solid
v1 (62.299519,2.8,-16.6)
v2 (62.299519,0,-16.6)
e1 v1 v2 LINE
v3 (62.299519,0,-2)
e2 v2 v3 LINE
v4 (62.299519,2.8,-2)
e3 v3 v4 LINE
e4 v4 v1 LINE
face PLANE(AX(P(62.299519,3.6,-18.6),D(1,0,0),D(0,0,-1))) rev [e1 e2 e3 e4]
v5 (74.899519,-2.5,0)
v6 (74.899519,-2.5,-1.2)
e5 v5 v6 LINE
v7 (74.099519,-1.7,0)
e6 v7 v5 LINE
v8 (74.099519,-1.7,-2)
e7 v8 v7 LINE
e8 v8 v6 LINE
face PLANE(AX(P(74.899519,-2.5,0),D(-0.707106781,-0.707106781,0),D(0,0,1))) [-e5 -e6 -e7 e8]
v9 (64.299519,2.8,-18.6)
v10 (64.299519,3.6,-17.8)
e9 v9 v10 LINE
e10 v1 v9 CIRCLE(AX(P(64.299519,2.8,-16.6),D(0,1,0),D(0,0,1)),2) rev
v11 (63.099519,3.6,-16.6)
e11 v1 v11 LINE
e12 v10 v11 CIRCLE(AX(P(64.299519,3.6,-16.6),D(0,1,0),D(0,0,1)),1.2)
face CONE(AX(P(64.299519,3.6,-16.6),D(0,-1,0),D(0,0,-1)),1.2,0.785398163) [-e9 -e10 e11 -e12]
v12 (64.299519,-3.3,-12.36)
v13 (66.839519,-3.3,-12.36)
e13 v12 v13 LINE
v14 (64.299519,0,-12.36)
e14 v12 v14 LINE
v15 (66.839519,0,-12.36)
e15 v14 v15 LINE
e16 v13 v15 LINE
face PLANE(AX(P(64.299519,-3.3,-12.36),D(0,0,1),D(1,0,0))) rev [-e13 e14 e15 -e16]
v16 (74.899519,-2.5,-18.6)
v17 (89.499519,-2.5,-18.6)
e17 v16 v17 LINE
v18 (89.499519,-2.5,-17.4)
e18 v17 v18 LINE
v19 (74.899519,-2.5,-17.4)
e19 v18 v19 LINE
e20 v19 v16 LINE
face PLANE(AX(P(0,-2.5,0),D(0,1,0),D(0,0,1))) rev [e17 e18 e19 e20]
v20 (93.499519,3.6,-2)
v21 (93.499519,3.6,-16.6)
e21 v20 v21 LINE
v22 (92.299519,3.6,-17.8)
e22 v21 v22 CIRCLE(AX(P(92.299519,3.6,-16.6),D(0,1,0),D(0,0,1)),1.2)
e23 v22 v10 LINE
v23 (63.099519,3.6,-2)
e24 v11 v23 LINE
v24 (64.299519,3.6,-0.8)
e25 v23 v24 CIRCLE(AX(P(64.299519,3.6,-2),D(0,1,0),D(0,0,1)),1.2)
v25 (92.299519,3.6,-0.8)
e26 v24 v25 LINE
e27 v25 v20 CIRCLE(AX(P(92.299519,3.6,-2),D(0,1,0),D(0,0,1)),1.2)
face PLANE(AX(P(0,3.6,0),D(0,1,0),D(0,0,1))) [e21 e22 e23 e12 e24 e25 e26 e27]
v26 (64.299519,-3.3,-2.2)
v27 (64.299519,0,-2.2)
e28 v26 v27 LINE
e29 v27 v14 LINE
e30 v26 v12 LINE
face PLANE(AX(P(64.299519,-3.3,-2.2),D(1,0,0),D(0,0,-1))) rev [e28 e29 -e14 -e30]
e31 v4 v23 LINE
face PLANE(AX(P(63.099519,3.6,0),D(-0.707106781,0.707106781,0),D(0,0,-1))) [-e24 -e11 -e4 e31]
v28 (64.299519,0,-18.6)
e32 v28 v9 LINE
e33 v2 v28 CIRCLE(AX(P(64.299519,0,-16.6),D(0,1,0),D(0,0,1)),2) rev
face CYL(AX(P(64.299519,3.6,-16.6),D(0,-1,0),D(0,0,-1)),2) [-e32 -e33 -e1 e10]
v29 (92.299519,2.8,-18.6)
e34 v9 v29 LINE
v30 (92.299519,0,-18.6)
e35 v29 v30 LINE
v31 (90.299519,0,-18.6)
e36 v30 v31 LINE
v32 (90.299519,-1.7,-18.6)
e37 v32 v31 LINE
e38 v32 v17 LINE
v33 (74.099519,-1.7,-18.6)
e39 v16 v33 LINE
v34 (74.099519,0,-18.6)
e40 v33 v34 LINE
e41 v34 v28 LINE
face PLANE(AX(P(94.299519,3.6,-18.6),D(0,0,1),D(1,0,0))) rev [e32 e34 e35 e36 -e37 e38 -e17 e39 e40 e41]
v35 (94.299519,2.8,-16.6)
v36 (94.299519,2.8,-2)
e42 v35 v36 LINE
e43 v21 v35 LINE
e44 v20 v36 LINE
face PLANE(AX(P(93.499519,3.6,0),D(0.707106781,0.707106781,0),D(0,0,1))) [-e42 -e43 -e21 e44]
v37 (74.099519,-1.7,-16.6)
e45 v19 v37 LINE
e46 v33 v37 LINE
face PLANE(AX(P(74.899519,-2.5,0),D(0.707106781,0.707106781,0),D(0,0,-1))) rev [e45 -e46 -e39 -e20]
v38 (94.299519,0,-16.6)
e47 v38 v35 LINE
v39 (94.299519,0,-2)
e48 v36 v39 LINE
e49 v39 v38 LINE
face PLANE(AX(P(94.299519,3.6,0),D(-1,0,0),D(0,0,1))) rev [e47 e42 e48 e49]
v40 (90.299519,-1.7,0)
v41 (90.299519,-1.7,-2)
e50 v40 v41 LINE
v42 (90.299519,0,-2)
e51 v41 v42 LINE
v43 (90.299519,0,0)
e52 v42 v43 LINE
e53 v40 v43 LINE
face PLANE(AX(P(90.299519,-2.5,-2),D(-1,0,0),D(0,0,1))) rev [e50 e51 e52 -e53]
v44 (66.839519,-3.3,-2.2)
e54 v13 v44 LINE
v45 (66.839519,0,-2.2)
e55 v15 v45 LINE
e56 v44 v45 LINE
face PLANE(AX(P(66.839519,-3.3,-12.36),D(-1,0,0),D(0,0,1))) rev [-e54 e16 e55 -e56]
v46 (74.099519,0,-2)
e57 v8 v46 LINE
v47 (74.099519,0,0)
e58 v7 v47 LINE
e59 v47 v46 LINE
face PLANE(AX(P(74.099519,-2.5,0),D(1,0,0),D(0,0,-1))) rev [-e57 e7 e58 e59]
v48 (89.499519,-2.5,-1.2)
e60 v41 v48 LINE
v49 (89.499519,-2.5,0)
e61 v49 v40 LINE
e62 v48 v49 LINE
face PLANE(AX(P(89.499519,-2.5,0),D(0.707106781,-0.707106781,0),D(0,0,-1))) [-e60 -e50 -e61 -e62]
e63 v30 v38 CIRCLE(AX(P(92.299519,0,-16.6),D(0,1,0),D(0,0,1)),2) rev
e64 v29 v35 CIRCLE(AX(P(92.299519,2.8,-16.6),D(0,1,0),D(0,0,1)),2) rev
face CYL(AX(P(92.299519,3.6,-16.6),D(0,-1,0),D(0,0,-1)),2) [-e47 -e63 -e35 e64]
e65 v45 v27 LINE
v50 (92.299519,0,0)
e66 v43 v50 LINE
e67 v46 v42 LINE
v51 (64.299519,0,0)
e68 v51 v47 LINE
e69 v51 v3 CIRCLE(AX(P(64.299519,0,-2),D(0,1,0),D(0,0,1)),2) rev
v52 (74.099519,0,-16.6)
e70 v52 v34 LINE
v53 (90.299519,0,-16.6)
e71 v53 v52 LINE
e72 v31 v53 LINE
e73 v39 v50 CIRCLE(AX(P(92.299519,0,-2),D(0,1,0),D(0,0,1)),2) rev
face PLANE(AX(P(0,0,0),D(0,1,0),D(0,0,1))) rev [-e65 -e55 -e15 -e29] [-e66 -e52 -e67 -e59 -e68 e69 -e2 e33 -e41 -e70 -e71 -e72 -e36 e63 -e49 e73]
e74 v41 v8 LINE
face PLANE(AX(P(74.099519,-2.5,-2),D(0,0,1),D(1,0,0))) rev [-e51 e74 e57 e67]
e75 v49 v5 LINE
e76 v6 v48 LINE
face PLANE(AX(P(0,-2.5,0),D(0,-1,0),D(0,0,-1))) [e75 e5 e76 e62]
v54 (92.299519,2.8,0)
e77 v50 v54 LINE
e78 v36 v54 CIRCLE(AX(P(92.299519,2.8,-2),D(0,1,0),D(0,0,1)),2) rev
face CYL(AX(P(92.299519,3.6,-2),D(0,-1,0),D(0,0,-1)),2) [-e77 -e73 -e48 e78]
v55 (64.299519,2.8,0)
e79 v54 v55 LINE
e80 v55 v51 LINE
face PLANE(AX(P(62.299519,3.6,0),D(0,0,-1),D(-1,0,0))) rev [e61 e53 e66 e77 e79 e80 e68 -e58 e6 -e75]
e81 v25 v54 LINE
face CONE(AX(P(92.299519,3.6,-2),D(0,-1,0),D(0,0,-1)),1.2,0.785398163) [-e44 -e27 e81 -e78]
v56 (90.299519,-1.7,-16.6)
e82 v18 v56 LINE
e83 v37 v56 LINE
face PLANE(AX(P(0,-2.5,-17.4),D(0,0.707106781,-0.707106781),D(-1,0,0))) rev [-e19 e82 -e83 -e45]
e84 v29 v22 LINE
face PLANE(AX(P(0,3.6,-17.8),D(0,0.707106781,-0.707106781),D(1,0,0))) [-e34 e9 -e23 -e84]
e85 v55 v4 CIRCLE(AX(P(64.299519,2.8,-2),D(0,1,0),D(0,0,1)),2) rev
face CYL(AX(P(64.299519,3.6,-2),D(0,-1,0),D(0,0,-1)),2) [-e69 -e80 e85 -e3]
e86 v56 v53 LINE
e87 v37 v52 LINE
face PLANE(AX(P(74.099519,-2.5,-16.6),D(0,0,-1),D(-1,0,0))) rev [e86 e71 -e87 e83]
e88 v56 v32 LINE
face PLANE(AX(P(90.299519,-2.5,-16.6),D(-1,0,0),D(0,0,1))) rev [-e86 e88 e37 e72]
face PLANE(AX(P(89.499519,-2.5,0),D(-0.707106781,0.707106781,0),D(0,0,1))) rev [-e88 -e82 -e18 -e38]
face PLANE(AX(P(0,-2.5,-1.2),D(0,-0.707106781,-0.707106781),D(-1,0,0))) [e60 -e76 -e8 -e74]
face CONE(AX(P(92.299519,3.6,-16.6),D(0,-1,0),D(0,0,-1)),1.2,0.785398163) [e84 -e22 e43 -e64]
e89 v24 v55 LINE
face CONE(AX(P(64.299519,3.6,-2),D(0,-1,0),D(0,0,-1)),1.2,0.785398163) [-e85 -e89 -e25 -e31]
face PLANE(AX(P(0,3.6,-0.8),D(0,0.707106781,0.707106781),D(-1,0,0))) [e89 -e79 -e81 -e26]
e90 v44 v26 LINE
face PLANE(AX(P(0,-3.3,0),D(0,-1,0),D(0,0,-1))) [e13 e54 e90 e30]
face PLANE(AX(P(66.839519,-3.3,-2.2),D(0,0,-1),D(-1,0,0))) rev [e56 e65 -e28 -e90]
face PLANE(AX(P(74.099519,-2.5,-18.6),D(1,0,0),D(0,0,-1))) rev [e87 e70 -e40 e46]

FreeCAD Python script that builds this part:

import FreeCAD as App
import Part
import Sketcher

V = App.Vector


def edges_at(feature, points):
    """Names of the edges that pass closest to the given points."""
    edges = feature.Shape.Edges
    near = lambda p: min(range(len(edges)), key=lambda i: edges[i].distToShape(Part.Vertex(*p))[0])
    return sorted({f"Edge{near(p) + 1}" for p in points})

doc = App.newDocument("Part")
body = doc.addObject("PartDesign::Body", "Body")

# Sketch on XZ plane
sketch1 = body.newObject("Sketcher::SketchObject", "Sketch")
sketch1.AttachmentSupport = (doc.getObject("XZ_Plane"), [""])
sketch1.MapMode = "FlatFace"
sketch1.addGeometry(Part.LineSegment(V(62, -19, 0), V(62, 0, 0)), False)
sketch1.addGeometry(Part.LineSegment(V(62, 0, 0), V(94, 0, 0)), False)
sketch1.addGeometry(Part.LineSegment(V(94, 0, 0), V(94, -19, 0)), False)
sketch1.addGeometry(Part.LineSegment(V(94, -19, 0), V(62, -19, 0)), False)
sketch1.addConstraint(Sketcher.Constraint("Coincident", 0, 2, 1, 1))
sketch1.addConstraint(Sketcher.Constraint("Coincident", 1, 2, 2, 1))
sketch1.addConstraint(Sketcher.Constraint("Coincident", 2, 2, 3, 1))
sketch1.addConstraint(Sketcher.Constraint("Coincident", 3, 2, 0, 1))
sketch1.addConstraint(Sketcher.Constraint("Vertical", 0))
sketch1.addConstraint(Sketcher.Constraint("Horizontal", 1))
sketch1.addConstraint(Sketcher.Constraint("Vertical", 2))
sketch1.addConstraint(Sketcher.Constraint("Horizontal", 3))
sketch1.addConstraint(Sketcher.Constraint("PointOnObject", 0, 2, -1))
sketch1.addConstraint(Sketcher.Constraint("DistanceX", 1, 1, 1, 2, 32.0))
sketch1.addConstraint(Sketcher.Constraint("DistanceY", 0, 1, 0, 2, 18.6))
sketch1.addConstraint(Sketcher.Constraint("DistanceX", -1, 1, 0, 2, 62.299519))
pad1 = body.newObject("PartDesign::Pad", "Pad")
pad1.Profile = sketch1
pad1.Length = 3.6
pad1.Reversed = True

# Sketch on XZ plane
sketch2 = body.newObject("Sketcher::SketchObject", "Sketch001")
sketch2.AttachmentSupport = (doc.getObject("XZ_Plane"), [""])
sketch2.MapMode = "FlatFace"
sketch2.addGeometry(Part.LineSegment(V(64.3, -2.2, 0), V(64.3, -12.4, 0)), False)
sketch2.addGeometry(Part.LineSegment(V(64.3, -12.4, 0), V(66.8, -12.4, 0)), False)
sketch2.addGeometry(Part.LineSegment(V(66.8, -12.4, 0), V(66.8, -2.2, 0)), False)
sketch2.addGeometry(Part.LineSegment(V(66.8, -2.2, 0), V(64.3, -2.2, 0)), False)
sketch2.addConstraint(Sketcher.Constraint("Coincident", 0, 2, 1, 1))
sketch2.addConstraint(Sketcher.Constraint("Coincident", 1, 2, 2, 1))
sketch2.addConstraint(Sketcher.Constraint("Coincident", 2, 2, 3, 1))
sketch2.addConstraint(Sketcher.Constraint("Coincident", 3, 2, 0, 1))
sketch2.addConstraint(Sketcher.Constraint("Vertical", 0))
sketch2.addConstraint(Sketcher.Constraint("Horizontal", 1))
sketch2.addConstraint(Sketcher.Constraint("Vertical", 2))
sketch2.addConstraint(Sketcher.Constraint("Horizontal", 3))
sketch2.addConstraint(Sketcher.Constraint("DistanceX", 1, 1, 1, 2, 2.54))
sketch2.addConstraint(Sketcher.Constraint("DistanceY", 0, 2, 0, 1, 10.16))
sketch2.addConstraint(Sketcher.Constraint("DistanceY", 2, 2, -1, 1, 2.2))
sketch2.addConstraint(Sketcher.Constraint("DistanceX", -1, 1, 0, 2, 64.299519))
pad2 = body.newObject("PartDesign::Pad", "Pad001")
pad2.Profile = sketch2
pad2.Length = 3.3

# Sketch on XZ plane
sketch3 = body.newObject("Sketcher::SketchObject", "Sketch002")
sketch3.AttachmentSupport = (doc.getObject("XZ_Plane"), [""])
sketch3.MapMode = "FlatFace"
sketch3.addGeometry(Part.LineSegment(V(74.1, -16.6, 0), V(74.1, -18.6, 0)), False)
sketch3.addGeometry(Part.LineSegment(V(74.1, -18.6, 0), V(90.3, -18.6, 0)), False)
sketch3.addGeometry(Part.LineSegment(V(90.3, -18.6, 0), V(90.3, -16.6, 0)), False)
sketch3.addGeometry(Part.LineSegment(V(90.3, -16.6, 0), V(74.1, -16.6, 0)), False)
sketch3.addGeometry(Part.LineSegment(V(74.1, 0, 0), V(74.1, -2, 0)), False)
sketch3.addGeometry(Part.LineSegment(V(74.1, -2, 0), V(90.3, -2, 0)), False)
sketch3.addGeometry(Part.LineSegment(V(90.3, -2, 0), V(90.3, 0, 0)), False)
sketch3.addGeometry(Part.LineSegment(V(90.3, 0, 0), V(74.1, 0, 0)), False)
sketch3.addConstraint(Sketcher.Constraint("Coincident", 0, 2, 1, 1))
sketch3.addConstraint(Sketcher.Constraint("Coincident", 1, 2, 2, 1))
sketch3.addConstraint(Sketcher.Constraint("Coincident", 2, 2, 3, 1))
sketch3.addConstraint(Sketcher.Constraint("Coincident", 3, 2, 0, 1))
sketch3.addConstraint(Sketcher.Constraint("Coincident", 4, 2, 5, 1))
sketch3.addConstraint(Sketcher.Constraint("Coincident", 5, 2, 6, 1))
sketch3.addConstraint(Sketcher.Constraint("Coincident", 6, 2, 7, 1))
sketch3.addConstraint(Sketcher.Constraint("Coincident", 7, 2, 4, 1))
sketch3.addConstraint(Sketcher.Constraint("Vertical", 0))
sketch3.addConstraint(Sketcher.Constraint("Horizontal", 1))
sketch3.addConstraint(Sketcher.Constraint("Vertical", 2))
sketch3.addConstraint(Sketcher.Constraint("Horizontal", 3))
sketch3.addConstraint(Sketcher.Constraint("Vertical", 4))
sketch3.addConstraint(Sketcher.Constraint("Horizontal", 5))
sketch3.addConstraint(Sketcher.Constraint("Vertical", 6))
sketch3.addConstraint(Sketcher.Constraint("Horizontal", 7))
sketch3.addConstraint(Sketcher.Constraint("PointOnObject", 6, 2, -1))
sketch3.addConstraint(Sketcher.Constraint("Vertical", 3, 2, 4, 2))
sketch3.addConstraint(Sketcher.Constraint("Vertical", 2, 2, 5, 2))
sketch3.addConstraint(Sketcher.Constraint("Equal", 2, 4))
sketch3.addConstraint(Sketcher.Constraint("DistanceY", 0, 2, 0, 1, 2.0))
sketch3.addConstraint(Sketcher.Constraint("DistanceX", 1, 1, 1, 2, 16.2))
sketch3.addConstraint(Sketcher.Constraint("DistanceY", 0, 2, -1, 1, 18.6))
sketch3.addConstraint(Sketcher.Constraint("DistanceX", -1, 1, 0, 2, 74.099519))
pad3 = body.newObject("PartDesign::Pad", "Pad002")
pad3.Profile = sketch3
pad3.Length = 2.5
doc.recompute()

fillet = body.newObject("PartDesign::Fillet", "Fillet")
fillet.Base = (pad3, edges_at(pad3, [
    (62.3, 1.8, -18.6),
    (94.3, 1.8, -18.6),
    (94.3, 1.8, 0),
    (62.3, 1.8, 0),
]))
fillet.Radius = 2
doc.recompute()

chamfer = body.newObject("PartDesign::Chamfer", "Chamfer")
chamfer.Base = (fillet, edges_at(fillet, [
    (62.3, 3.6, -9.3),
    (78.3, 3.6, -18.6),
    (78.3, 3.6, 0),
    (94.3, 3.6, -9.3),
    (62.885, 3.6, -0.586),
    (93.714, 3.6, -0.586),
    (93.714, 3.6, -18.014),
    (62.885, 3.6, -18.014),
]))
chamfer.Size = 0.8
doc.recompute()

chamfer2 = body.newObject("PartDesign::Chamfer", "Chamfer001")
chamfer2.Base = (chamfer, edges_at(chamfer, [
    (90.3, -2.5, -17.6),
    (82.2, -2.5, -16.6),
    (74.1, -2.5, -17.6),
    (82.2, -2.5, -2),
    (90.3, -2.5, -1),
    (74.1, -2.5, -1),
]))
chamfer2.Size = 0.8

doc.recompute()
